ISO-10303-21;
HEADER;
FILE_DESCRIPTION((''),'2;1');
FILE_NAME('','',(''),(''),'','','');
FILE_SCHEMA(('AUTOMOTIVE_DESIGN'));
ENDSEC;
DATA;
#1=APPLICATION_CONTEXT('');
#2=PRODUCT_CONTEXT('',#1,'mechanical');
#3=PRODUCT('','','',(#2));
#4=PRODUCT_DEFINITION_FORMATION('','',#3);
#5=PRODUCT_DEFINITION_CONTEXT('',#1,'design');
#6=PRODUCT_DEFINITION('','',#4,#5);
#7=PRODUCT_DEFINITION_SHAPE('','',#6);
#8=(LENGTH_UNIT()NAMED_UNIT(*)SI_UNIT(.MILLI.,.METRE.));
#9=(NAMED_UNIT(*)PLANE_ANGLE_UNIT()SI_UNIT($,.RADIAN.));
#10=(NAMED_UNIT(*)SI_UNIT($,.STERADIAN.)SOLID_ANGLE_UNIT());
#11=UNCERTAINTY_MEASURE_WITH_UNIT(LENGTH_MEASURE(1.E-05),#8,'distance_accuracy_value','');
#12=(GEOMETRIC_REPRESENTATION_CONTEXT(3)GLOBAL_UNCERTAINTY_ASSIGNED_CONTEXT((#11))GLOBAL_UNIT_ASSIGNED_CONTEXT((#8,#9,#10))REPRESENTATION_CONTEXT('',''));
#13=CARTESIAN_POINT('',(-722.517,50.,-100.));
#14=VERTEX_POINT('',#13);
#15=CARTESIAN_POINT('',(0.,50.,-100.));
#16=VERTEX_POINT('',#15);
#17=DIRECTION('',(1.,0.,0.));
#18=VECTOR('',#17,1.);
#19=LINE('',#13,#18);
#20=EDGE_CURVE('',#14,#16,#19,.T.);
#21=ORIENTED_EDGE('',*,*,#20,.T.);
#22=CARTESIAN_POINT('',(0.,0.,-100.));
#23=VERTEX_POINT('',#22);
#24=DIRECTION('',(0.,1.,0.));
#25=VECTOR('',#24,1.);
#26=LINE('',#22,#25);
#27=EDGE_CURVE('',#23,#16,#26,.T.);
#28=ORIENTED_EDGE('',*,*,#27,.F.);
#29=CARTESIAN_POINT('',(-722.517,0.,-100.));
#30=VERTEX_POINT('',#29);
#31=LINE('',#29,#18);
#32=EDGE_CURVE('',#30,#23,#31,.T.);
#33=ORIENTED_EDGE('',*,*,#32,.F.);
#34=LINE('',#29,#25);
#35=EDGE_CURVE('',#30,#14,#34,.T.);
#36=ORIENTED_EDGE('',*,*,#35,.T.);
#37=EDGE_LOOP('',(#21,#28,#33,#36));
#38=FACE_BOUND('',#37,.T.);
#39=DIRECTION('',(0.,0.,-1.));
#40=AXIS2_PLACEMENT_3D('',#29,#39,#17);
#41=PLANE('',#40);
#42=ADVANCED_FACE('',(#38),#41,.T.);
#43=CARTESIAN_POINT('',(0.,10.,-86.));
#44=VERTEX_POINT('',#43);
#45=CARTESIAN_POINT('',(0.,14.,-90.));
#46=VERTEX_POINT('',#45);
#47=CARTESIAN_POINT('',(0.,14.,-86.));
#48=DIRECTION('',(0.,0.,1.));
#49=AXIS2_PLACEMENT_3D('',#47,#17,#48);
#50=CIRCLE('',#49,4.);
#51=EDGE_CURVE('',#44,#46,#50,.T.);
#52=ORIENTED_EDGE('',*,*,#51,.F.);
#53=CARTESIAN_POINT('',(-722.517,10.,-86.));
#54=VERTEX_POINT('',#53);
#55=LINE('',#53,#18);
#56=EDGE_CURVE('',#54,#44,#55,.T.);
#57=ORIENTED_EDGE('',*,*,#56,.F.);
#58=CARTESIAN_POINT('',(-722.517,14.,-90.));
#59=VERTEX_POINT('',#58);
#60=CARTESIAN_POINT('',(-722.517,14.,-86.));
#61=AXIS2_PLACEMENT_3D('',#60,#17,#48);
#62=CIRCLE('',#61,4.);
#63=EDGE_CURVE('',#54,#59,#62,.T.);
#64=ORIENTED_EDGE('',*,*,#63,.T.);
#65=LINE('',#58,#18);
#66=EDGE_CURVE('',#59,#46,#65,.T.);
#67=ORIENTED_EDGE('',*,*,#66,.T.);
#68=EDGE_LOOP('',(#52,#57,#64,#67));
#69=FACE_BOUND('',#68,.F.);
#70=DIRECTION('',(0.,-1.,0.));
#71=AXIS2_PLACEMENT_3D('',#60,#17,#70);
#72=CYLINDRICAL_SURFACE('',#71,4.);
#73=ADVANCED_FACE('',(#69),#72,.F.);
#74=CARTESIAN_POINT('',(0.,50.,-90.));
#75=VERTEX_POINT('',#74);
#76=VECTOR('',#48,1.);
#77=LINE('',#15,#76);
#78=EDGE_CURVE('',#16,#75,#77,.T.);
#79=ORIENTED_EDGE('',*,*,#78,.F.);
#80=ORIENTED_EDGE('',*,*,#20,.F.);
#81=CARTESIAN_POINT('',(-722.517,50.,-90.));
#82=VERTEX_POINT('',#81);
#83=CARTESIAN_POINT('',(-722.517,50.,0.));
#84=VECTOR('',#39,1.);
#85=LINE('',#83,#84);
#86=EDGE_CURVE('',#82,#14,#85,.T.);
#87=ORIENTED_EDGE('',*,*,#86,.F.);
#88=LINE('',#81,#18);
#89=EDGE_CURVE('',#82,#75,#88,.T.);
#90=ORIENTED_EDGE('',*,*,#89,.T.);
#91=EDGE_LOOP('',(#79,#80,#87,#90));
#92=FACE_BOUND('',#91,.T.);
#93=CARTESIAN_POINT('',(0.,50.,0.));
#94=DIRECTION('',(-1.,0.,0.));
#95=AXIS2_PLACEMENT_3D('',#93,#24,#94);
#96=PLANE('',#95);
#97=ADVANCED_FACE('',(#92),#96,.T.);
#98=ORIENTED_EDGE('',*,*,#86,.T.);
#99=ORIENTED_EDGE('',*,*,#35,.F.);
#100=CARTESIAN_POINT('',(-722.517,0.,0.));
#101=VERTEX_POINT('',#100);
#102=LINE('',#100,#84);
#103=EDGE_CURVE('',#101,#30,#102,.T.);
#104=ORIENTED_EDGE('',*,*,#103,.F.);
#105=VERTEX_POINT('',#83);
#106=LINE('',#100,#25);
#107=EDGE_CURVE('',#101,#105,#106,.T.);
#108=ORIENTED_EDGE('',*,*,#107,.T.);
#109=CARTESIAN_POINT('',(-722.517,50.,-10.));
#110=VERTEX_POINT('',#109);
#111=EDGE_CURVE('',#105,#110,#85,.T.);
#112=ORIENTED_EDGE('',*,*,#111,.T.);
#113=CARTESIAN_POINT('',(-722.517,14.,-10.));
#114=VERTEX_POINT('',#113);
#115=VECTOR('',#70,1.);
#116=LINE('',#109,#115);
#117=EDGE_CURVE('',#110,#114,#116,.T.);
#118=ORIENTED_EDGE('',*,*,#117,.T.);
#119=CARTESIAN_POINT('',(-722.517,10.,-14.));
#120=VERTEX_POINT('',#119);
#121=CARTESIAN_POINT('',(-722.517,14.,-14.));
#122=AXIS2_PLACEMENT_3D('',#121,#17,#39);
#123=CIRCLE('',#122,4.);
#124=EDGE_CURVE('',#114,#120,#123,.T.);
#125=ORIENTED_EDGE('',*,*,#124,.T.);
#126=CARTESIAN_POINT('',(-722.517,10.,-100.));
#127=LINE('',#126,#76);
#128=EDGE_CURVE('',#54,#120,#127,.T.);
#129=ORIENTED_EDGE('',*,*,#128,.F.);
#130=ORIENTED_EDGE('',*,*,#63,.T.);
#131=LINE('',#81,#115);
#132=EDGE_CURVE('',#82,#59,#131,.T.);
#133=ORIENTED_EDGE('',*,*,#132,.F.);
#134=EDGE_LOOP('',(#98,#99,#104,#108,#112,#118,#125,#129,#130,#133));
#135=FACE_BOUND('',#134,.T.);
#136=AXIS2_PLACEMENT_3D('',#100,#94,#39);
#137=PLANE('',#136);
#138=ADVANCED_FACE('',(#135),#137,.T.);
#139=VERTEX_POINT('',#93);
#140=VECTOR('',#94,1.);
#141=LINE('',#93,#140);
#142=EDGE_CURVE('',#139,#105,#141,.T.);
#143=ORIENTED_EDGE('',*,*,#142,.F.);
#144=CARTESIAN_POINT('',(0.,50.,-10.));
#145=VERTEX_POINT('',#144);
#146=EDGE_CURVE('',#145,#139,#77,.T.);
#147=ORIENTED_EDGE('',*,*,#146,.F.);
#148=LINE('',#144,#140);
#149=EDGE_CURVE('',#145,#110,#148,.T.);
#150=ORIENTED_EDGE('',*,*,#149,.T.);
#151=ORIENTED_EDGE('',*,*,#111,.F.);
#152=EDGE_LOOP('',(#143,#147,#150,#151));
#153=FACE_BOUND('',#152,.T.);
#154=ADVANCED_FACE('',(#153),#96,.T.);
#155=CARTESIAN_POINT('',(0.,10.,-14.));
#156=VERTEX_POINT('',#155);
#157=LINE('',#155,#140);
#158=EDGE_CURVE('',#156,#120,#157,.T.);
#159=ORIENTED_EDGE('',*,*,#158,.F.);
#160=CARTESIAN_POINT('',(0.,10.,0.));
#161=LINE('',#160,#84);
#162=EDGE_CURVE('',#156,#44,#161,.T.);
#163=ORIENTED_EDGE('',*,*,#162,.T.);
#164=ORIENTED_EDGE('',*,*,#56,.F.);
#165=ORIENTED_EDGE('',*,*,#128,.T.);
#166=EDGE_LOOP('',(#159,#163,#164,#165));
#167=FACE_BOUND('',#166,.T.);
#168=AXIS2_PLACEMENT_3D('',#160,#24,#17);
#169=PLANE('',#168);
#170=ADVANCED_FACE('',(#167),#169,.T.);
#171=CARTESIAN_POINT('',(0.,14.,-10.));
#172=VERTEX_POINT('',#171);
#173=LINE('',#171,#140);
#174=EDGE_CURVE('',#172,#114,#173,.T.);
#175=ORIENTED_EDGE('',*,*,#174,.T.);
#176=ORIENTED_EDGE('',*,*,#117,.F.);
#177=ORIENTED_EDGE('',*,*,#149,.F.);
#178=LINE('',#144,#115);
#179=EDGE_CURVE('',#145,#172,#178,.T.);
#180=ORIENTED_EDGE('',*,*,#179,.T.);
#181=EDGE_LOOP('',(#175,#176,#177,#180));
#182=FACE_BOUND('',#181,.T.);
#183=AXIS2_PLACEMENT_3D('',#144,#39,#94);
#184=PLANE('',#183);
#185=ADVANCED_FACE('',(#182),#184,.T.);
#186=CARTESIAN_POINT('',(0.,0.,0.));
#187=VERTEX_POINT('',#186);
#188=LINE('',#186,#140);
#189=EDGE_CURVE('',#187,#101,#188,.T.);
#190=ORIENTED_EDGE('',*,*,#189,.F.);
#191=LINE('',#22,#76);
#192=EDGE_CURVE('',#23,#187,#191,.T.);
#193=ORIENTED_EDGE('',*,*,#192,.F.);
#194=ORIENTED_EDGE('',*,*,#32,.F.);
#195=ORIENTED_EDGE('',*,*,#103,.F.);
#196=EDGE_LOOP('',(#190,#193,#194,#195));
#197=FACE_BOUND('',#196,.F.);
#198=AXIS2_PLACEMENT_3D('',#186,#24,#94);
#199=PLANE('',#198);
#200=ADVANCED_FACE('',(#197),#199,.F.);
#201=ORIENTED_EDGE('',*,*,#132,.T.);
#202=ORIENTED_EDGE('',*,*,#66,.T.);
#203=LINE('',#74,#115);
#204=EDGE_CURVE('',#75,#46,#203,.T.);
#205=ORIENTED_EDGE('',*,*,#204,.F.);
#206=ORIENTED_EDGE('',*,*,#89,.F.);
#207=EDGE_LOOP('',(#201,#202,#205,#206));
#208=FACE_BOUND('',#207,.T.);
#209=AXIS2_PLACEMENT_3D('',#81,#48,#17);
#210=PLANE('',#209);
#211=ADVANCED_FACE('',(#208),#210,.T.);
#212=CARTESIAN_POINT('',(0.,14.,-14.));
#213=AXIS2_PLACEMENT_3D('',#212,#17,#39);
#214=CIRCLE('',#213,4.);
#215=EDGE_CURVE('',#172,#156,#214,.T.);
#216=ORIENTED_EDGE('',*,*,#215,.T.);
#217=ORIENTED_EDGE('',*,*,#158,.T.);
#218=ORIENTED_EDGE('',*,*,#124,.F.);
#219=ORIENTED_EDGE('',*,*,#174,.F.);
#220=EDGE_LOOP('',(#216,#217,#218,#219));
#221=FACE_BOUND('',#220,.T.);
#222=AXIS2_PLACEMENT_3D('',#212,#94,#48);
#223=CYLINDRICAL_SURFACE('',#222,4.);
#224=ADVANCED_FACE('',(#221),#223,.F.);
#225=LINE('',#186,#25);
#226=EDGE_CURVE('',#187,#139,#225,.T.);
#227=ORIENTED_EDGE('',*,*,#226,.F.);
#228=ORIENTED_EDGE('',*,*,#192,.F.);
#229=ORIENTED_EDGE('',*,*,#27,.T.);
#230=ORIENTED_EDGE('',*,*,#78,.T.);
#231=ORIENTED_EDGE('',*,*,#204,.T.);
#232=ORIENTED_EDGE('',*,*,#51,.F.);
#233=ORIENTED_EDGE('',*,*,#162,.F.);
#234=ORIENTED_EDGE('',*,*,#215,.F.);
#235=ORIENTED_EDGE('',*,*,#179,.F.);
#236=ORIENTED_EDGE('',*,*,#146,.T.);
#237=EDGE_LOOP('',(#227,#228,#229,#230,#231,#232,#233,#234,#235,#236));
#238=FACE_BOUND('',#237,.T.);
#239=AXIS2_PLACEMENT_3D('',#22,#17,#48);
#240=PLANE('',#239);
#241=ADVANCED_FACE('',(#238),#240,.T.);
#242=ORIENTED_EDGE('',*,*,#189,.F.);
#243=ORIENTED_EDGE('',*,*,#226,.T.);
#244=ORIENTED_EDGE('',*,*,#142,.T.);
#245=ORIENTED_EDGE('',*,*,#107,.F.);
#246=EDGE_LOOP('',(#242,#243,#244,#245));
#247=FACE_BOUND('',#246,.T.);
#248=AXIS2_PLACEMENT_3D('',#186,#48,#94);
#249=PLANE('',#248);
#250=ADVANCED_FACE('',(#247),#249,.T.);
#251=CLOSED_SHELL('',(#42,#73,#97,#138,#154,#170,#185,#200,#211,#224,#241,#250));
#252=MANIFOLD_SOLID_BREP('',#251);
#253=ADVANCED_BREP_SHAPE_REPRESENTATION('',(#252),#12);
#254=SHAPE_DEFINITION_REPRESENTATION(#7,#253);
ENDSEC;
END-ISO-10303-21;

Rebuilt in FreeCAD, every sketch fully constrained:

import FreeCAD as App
import Part
import Sketcher


def edges_at(feature, points):
    """Names of the edges that pass closest to the given points."""
    edges = feature.Shape.Edges
    near = lambda p: min(range(len(edges)), key=lambda i: edges[i].distToShape(Part.Vertex(*p))[0])
    return sorted({f"Edge{near(p) + 1}" for p in points})

doc = App.newDocument("Part")
body = doc.addObject("PartDesign::Body", "Body")

# Sketch on XZ plane
sketch1 = body.newObject("Sketcher::SketchObject", "Sketch")
sketch1.AttachmentSupport = (doc.getObject("XZ_Plane"), [""])
sketch1.MapMode = "FlatFace"
sketch1.addGeometry(Part.LineSegment(App.Vector(-723, 0, 0), App.Vector(0, 0, 0)), False)
sketch1.addGeometry(Part.LineSegment(App.Vector(0, 0, 0), App.Vector(0, -100, 0)), False)
sketch1.addGeometry(Part.LineSegment(App.Vector(0, -100, 0), App.Vector(-723, -100, 0)), False)
sketch1.addGeometry(Part.LineSegment(App.Vector(-723, -100, 0), App.Vector(-723, 0, 0)), False)
sketch1.addConstraint(Sketcher.Constraint("Coincident", 0, 2, 1, 1))
sketch1.addConstraint(Sketcher.Constraint("Coincident", 1, 2, 2, 1))
sketch1.addConstraint(Sketcher.Constraint("Coincident", 2, 2, 3, 1))
sketch1.addConstraint(Sketcher.Constraint("Coincident", 3, 2, 0, 1))
sketch1.addConstraint(Sketcher.Constraint("Horizontal", 0))
sketch1.addConstraint(Sketcher.Constraint("Vertical", 1))
sketch1.addConstraint(Sketcher.Constraint("Horizontal", 2))
sketch1.addConstraint(Sketcher.Constraint("Vertical", 3))
sketch1.addConstraint(Sketcher.Constraint("Coincident", 0, 2, -1, 1))
sketch1.addConstraint(Sketcher.Constraint("DistanceY", 1, 2, 1, 1, 100.0))
sketch1.addConstraint(Sketcher.Constraint("DistanceX", 0, 1, 0, 2, 722.517))
pad1 = body.newObject("PartDesign::Pad", "Pad")
pad1.Profile = sketch1
pad1.Length = 50
pad1.Reversed = True

# Sketch on XZ plane
sketch2 = body.newObject("Sketcher::SketchObject", "Sketch001")
sketch2.AttachmentSupport = (doc.getObject("XZ_Plane"), [""])
sketch2.MapMode = "FlatFace"
sketch2.AttachmentOffset = App.Placement(App.Vector(0, 0, -50), App.Rotation())
sketch2.addGeometry(Part.LineSegment(App.Vector(-723, -10, 0), App.Vector(0, -10, 0)), False)
sketch2.addGeometry(Part.LineSegment(App.Vector(0, -10, 0), App.Vector(0, -90, 0)), False)
sketch2.addGeometry(Part.LineSegment(App.Vector(0, -90, 0), App.Vector(-723, -90, 0)), False)
sketch2.addGeometry(Part.LineSegment(App.Vector(-723, -90, 0), App.Vector(-723, -10, 0)), False)
sketch2.addConstraint(Sketcher.Constraint("Coincident", 0, 2, 1, 1))
sketch2.addConstraint(Sketcher.Constraint("Coincident", 1, 2, 2, 1))
sketch2.addConstraint(Sketcher.Constraint("Coincident", 2, 2, 3, 1))
sketch2.addConstraint(Sketcher.Constraint("Coincident", 3, 2, 0, 1))
sketch2.addConstraint(Sketcher.Constraint("Horizontal", 0))
sketch2.addConstraint(Sketcher.Constraint("Vertical", 1))
sketch2.addConstraint(Sketcher.Constraint("Horizontal", 2))
sketch2.addConstraint(Sketcher.Constraint("Vertical", 3))
sketch2.addConstraint(Sketcher.Constraint("PointOnObject", 0, 2, -2))
sketch2.addConstraint(Sketcher.Constraint("DistanceY", 1, 2, 1, 1, 80.0))
sketch2.addConstraint(Sketcher.Constraint("DistanceY", 0, 2, -1, 1, 10.0))
sketch2.addConstraint(Sketcher.Constraint("DistanceX", 0, 1, 0, 2, 722.517))
pocket1 = body.newObject("PartDesign::Pocket", "Pocket")
pocket1.Profile = sketch2
pocket1.Length = 40
pocket1.Reversed = True
doc.recompute()

fillet = body.newObject("PartDesign::Fillet", "Fillet")
fillet.Base = (pocket1, edges_at(pocket1, [(-361.259, 10, -90), (-361.259, 10, -10)]))
fillet.Radius = 4

doc.recompute()
